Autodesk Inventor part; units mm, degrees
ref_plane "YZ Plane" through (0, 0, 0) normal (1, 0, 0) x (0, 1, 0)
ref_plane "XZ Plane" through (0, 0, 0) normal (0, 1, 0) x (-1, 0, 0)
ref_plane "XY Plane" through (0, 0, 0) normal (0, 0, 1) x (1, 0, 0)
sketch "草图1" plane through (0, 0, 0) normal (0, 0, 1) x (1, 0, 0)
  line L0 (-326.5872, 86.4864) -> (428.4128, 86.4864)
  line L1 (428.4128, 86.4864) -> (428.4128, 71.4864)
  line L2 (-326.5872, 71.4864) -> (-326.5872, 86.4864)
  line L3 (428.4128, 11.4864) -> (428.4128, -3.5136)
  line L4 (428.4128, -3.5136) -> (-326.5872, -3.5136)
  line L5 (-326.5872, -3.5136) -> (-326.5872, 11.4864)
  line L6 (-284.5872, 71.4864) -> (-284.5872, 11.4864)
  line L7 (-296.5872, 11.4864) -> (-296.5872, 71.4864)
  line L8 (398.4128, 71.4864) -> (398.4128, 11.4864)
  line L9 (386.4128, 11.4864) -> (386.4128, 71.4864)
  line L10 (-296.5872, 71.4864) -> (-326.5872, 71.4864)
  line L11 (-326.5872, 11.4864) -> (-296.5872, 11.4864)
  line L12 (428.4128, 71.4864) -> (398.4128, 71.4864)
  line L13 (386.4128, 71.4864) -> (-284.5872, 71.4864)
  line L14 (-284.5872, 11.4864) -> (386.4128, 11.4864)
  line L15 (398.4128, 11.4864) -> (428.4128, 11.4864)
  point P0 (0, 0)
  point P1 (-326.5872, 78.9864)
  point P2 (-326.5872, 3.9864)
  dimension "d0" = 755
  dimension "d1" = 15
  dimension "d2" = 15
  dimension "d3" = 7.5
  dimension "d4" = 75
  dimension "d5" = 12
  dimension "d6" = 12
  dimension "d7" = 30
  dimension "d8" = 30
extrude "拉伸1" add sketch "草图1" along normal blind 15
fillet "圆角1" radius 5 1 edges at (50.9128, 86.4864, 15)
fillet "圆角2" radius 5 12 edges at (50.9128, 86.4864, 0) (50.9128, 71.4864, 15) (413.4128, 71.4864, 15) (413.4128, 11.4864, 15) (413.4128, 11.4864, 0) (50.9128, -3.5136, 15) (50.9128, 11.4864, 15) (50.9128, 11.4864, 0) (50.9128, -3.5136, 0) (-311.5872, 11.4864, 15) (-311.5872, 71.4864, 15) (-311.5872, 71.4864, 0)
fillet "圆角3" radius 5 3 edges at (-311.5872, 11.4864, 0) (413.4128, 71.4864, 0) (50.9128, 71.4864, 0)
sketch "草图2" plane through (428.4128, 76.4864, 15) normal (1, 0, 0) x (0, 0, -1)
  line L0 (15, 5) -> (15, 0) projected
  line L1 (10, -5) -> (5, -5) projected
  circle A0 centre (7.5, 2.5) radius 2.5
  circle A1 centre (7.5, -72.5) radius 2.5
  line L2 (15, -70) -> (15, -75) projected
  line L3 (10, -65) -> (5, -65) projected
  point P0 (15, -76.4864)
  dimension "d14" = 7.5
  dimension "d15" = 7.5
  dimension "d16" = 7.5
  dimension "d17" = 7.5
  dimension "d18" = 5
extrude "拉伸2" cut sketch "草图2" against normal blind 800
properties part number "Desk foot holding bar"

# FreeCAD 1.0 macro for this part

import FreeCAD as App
import Part
import Sketcher

V = App.Vector


def edges_at(feature, points):
    """Names of the edges that pass closest to the given points."""
    edges = feature.Shape.Edges
    near = lambda p: min(range(len(edges)), key=lambda i: edges[i].distToShape(Part.Vertex(*p))[0])
    return sorted({f"Edge{near(p) + 1}" for p in points})


def add_polygon(sketch, points):
    """Adds a closed chain of lines whose ends are joined by coincident constraints."""
    first, n = sketch.GeometryCount, len(points)
    for a, b in zip(points, points[1:] + points[:1]):
        sketch.addGeometry(Part.LineSegment(App.Vector(*a, 0), App.Vector(*b, 0)), False)
    for i in range(n):
        sketch.addConstraint(Sketcher.Constraint("Coincident", first + i, 2, first + (i + 1) % n, 1))

doc = App.newDocument("Part")
params = doc.addObject("Spreadsheet::Sheet", "Params")
for row, (alias, value) in enumerate([
    ("sketch1_width", "755 mm"),
    ("sketch1_width2", "30 mm"),
    ("sketch1_height", "15 mm"),
    ("pad1_length", "15 mm"),
    ("fillet_radius", "5 mm"),
    ("fillet2_radius", "5 mm"),
    ("fillet3_radius", "5 mm"),
    ("sketch2_diameter", "5 mm"),
    ("pocket1_length", "800 mm"),
], start=1):
    params.set(f"A{row}", alias)
    params.set(f"B{row}", "=" + value)
    params.setAlias(f"B{row}", alias)

body = doc.addObject("PartDesign::Body", "Body")

sketch1 = doc.addObject("Sketcher::SketchObject", "Sketch")
body.addObject(sketch1)
sketch1.AttachmentSupport = (doc.XY_Plane, [""])
sketch1.MapMode = "FlatFace"
add_polygon(sketch1, [(428, 86), (-327, 86), (-327, 71), (-297, 71), (-297, 11), (-327, 11), (-327, -4), (428, -4), (428, 11), (398, 11), (398, 71), (428, 71)])
add_polygon(sketch1, [(-285, 11), (-285, 71), (386, 71), (386, 11)])
sketch1.addConstraint([
    Sketcher.Constraint("Horizontal", 0),
    Sketcher.Constraint("Vertical", 1),
    Sketcher.Constraint("Horizontal", 2),
    Sketcher.Constraint("Vertical", 3),
    Sketcher.Constraint("Horizontal", 4),
    Sketcher.Constraint("Vertical", 5),
    Sketcher.Constraint("Horizontal", 6),
    Sketcher.Constraint("Vertical", 7),
    Sketcher.Constraint("Horizontal", 8),
    Sketcher.Constraint("Vertical", 9),
    Sketcher.Constraint("Horizontal", 10),
    Sketcher.Constraint("Vertical", 11),
    Sketcher.Constraint("Vertical", 12),
    Sketcher.Constraint("Horizontal", 13),
    Sketcher.Constraint("Vertical", 14),
    Sketcher.Constraint("Horizontal", 15),
    Sketcher.Constraint("Horizontal", 4, 2, 7, 2),
    Sketcher.Constraint("Horizontal", 2, 2, 9, 2),
    Sketcher.Constraint("Horizontal", 10, 2, 12, 2),
    Sketcher.Constraint("Horizontal", 8, 2, 14, 2),
    Sketcher.Constraint("Vertical", 1, 2, 4, 2),
    Sketcher.Constraint("Vertical", 7, 2, 10, 2),
    Sketcher.Constraint("Equal", 4, 8),
    Sketcher.Constraint("Equal", 1, 5),
    Sketcher.Constraint("DistanceX", 0, 2, 0, 1, 755.0),
    Sketcher.Constraint("DistanceX", 2, 1, 2, 2, 30.0),
    Sketcher.Constraint("DistanceY", 1, 2, 1, 1, 15.0),
    Sketcher.Constraint("DistanceY", 3, 2, 0, 2, 75.0),
    Sketcher.Constraint("DistanceX", 2, 2, 12, 2, 12.0),
    Sketcher.Constraint("DistanceX", 13, 2, 9, 2, 12.0),
    Sketcher.Constraint("DistanceX", 0, 2, -1, 1, 326.5872),
    Sketcher.Constraint("DistanceY", -1, 1, 0, 2, 86.4864),
])
sketch1.setExpression("Constraints[40]", "Params.sketch1_width")
sketch1.setExpression("Constraints[41]", "Params.sketch1_width2")
sketch1.setExpression("Constraints[42]", "Params.sketch1_height")
pad1 = doc.addObject("PartDesign::Pad", "Pad")
body.addObject(pad1)
pad1.Profile = sketch1
pad1.setExpression("Length", "Params.pad1_length")
doc.recompute()

fillet = doc.addObject("PartDesign::Fillet", "Fillet")
body.addObject(fillet)
fillet.Base = (pad1, edges_at(pad1, [(50.913, 86.486, 15)]))
fillet.setExpression("Radius", "Params.fillet_radius")
doc.recompute()

fillet2 = doc.addObject("PartDesign::Fillet", "Fillet001")
body.addObject(fillet2)
fillet2.Base = (fillet, edges_at(fillet, [
    (50.913, 86.486, 0),
    (50.913, 71.486, 15),
    (413.413, 71.486, 15),
    (413.413, 11.486, 15),
    (413.413, 11.486, 0),
    (50.913, -3.514, 15),
    (50.913, 11.486, 15),
    (50.913, 11.486, 0),
    (50.913, -3.514, 0),
    (-311.587, 11.486, 15),
    (-311.587, 71.486, 15),
    (-311.587, 71.486, 0),
]))
fillet2.setExpression("Radius", "Params.fillet2_radius")
doc.recompute()

fillet3 = doc.addObject("PartDesign::Fillet", "Fillet002")
body.addObject(fillet3)
fillet3.Base = (fillet2, edges_at(fillet2, [(-311.587, 11.486, 0), (413.413, 71.486, 0), (50.913, 71.486, 0)]))
fillet3.setExpression("Radius", "Params.fillet3_radius")

sketch2 = doc.addObject("Sketcher::SketchObject", "Sketch001")
body.addObject(sketch2)
sketch2.AttachmentSupport = (doc.YZ_Plane, [""])
sketch2.MapMode = "FlatFace"
sketch2.AttachmentOffset = App.Placement(V(0, 0, 428.4128), App.Rotation())
sketch2.addGeometry([
    Part.Circle(V(79, 7.5, 0), V(0, 0, 1), 2.5),
    Part.Circle(V(4, 7.5, 0), V(0, 0, 1), 2.5),
], False)
sketch2.addConstraint([
    Sketcher.Constraint("Equal", 0, 1),
    Sketcher.Constraint("Horizontal", 0, 3, 1, 3),
    Sketcher.Constraint("Diameter", 0, 5.0),
    Sketcher.Constraint("DistanceY", -1, 1, 0, 3, 7.5),
    Sketcher.Constraint("DistanceX", 1, 3, 0, 3, 75.0),
    Sketcher.Constraint("DistanceX", -1, 1, 0, 3, 78.9864),
])
sketch2.setExpression("Constraints[2]", "Params.sketch2_diameter")
pocket1 = doc.addObject("PartDesign::Pocket", "Pocket")
body.addObject(pocket1)
pocket1.Profile = sketch2
pocket1.setExpression("Length", "Params.pocket1_length")

doc.recompute()
